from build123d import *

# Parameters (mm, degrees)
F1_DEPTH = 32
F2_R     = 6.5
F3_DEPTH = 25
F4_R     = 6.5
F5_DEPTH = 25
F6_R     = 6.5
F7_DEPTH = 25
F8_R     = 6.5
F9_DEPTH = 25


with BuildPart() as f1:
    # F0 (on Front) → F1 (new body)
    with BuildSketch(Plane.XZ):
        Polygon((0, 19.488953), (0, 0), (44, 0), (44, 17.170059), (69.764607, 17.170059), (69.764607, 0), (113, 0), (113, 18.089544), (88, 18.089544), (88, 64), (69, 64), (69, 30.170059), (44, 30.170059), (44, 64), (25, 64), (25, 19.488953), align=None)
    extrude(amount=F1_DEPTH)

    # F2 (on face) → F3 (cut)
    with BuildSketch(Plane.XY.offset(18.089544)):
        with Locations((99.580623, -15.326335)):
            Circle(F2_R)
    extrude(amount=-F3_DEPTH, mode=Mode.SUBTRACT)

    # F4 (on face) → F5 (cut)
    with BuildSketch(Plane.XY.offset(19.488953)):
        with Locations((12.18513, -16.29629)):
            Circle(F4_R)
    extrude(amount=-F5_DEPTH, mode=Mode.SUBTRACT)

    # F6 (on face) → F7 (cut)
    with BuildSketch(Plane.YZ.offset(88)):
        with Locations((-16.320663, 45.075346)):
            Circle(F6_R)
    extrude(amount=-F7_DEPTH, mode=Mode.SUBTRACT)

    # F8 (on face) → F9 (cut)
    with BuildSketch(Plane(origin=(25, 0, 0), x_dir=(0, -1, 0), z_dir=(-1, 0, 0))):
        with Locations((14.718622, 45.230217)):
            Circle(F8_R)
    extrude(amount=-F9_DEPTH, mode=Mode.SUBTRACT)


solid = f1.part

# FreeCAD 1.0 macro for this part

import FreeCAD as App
import Part
import Sketcher

V = App.Vector
Q = App.Units.Quantity


def add_polygon(sketch, points):
    """Adds a closed chain of lines whose ends are joined by coincident constraints."""
    first, n = sketch.GeometryCount, len(points)
    for a, b in zip(points, points[1:] + points[:1]):
        sketch.addGeometry(Part.LineSegment(App.Vector(*a, 0), App.Vector(*b, 0)), False)
    for i in range(n):
        sketch.addConstraint(Sketcher.Constraint("Coincident", first + i, 2, first + (i + 1) % n, 1))

doc = App.newDocument("Part")
params = doc.addObject("Spreadsheet::Sheet", "Params")
for row, (alias, value) in enumerate([
    ("sketch1_width", "44 mm"),
    ("sketch1_width2", "25 mm"),
    ("pad1_length", "32 mm"),
    ("sketch2_diameter", "13 mm"),
    ("pocket1_length", "25 mm"),
    ("sketch3_diameter", "13 mm"),
    ("pocket2_length", "25 mm"),
    ("sketch4_diameter", "13 mm"),
    ("pocket3_length", "25 mm"),
    ("sketch5_diameter", "13 mm"),
    ("pocket4_length", "25 mm"),
], start=1):
    params.set(f"A{row}", alias)
    params.set(f"B{row}", "=" + value)
    params.setAlias(f"B{row}", alias)

body = doc.addObject("PartDesign::Body", "Body")

# Sketch on XZ plane
sketch1 = body.newObject("Sketcher::SketchObject", "Sketch")
sketch1.AttachmentSupport = (doc.getObject("XZ_Plane"), [""])
sketch1.MapMode = "FlatFace"
add_polygon(sketch1, [(0, 19), (0, 0), (44, 0), (44, 17), (70, 17), (70, 0), (113, 0), (113, 18), (88, 18), (88, 64), (69, 64), (69, 30), (44, 30), (44, 64), (25, 64), (25, 19)])  # lines 0-15
sketch1.addConstraint(Sketcher.Constraint("Vertical", 0))
sketch1.addConstraint(Sketcher.Constraint("Horizontal", 1))
sketch1.addConstraint(Sketcher.Constraint("Vertical", 2))
sketch1.addConstraint(Sketcher.Constraint("Horizontal", 3))
sketch1.addConstraint(Sketcher.Constraint("Vertical", 4))
sketch1.addConstraint(Sketcher.Constraint("Horizontal", 5))
sketch1.addConstraint(Sketcher.Constraint("Vertical", 6))
sketch1.addConstraint(Sketcher.Constraint("Horizontal", 7))
sketch1.addConstraint(Sketcher.Constraint("Vertical", 8))
sketch1.addConstraint(Sketcher.Constraint("Horizontal", 9))
sketch1.addConstraint(Sketcher.Constraint("Vertical", 10))
sketch1.addConstraint(Sketcher.Constraint("Horizontal", 11))
sketch1.addConstraint(Sketcher.Constraint("Vertical", 12))
sketch1.addConstraint(Sketcher.Constraint("Horizontal", 13))
sketch1.addConstraint(Sketcher.Constraint("Vertical", 14))
sketch1.addConstraint(Sketcher.Constraint("Horizontal", 15))
sketch1.addConstraint(Sketcher.Constraint("Coincident", 0, 2, -1, 1))
sketch1.addConstraint(Sketcher.Constraint("PointOnObject", 4, 2, -1))
sketch1.addConstraint(Sketcher.Constraint("Horizontal", 9, 2, 12, 2))
sketch1.addConstraint(Sketcher.Constraint("Vertical", 2, 2, 11, 2))
sketch1.addConstraint(Sketcher.Constraint("Equal", 7, 11))
sketch1.addConstraint(Sketcher.Constraint("Equal", 9, 13))
sketch1.addConstraint(Sketcher.Constraint("Equal", 11, 15))
sketch1.addConstraint(Sketcher.Constraint("DistanceX", 1, 1, 1, 2, Q("44 mm")))
sketch1.addConstraint(Sketcher.Constraint("DistanceX", 7, 2, 7, 1, Q("25 mm")))
sketch1.addConstraint(Sketcher.Constraint("DistanceY", -1, 1, 8, 2, Q("64 mm")))
sketch1.addConstraint(Sketcher.Constraint("DistanceY", 3, 2, 10, 2, Q("13 mm")))
sketch1.addConstraint(Sketcher.Constraint("DistanceY", 2, 1, 2, 2, Q("17.170059 mm")))
sketch1.addConstraint(Sketcher.Constraint("DistanceX", 3, 1, 3, 2, Q("25.764607 mm")))
sketch1.addConstraint(Sketcher.Constraint("DistanceY", 0, 2, 0, 1, Q("19.488953 mm")))
sketch1.addConstraint(Sketcher.Constraint("DistanceY", 6, 1, 6, 2, Q("18.089544 mm")))
sketch1.setExpression("Constraints[39]", "Params.sketch1_width")
sketch1.setExpression("Constraints[40]", "Params.sketch1_width2")
pad1 = body.newObject("PartDesign::Pad", "Pad")
pad1.Profile = sketch1
pad1.setExpression("Length", "Params.pad1_length")

# Sketch on XY plane
sketch2 = body.newObject("Sketcher::SketchObject", "Sketch001")
sketch2.AttachmentSupport = (doc.getObject("XY_Plane"), [""])
sketch2.MapMode = "FlatFace"
sketch2.AttachmentOffset = App.Placement(V(0, 0, 18.089544), App.Rotation())
sketch2.addGeometry(Part.Circle(V(100, -15, 0), V(0, 0, 1), 6), False)
sketch2.addConstraint(Sketcher.Constraint("Diameter", 0, Q("13 mm")))
sketch2.addConstraint(Sketcher.Constraint("DistanceX", -1, 1, 0, 3, Q("99.580623 mm")))
sketch2.addConstraint(Sketcher.Constraint("DistanceY", 0, 3, -1, 1, Q("15.326335 mm")))
sketch2.setExpression("Constraints[0]", "Params.sketch2_diameter")
pocket1 = body.newObject("PartDesign::Pocket", "Pocket")
pocket1.Profile = sketch2
pocket1.setExpression("Length", "Params.pocket1_length")

# Sketch on XY plane
sketch3 = body.newObject("Sketcher::SketchObject", "Sketch002")
sketch3.AttachmentSupport = (doc.getObject("XY_Plane"), [""])
sketch3.MapMode = "FlatFace"
sketch3.AttachmentOffset = App.Placement(V(0, 0, 19.488953), App.Rotation())
sketch3.addGeometry(Part.Circle(V(12, -16, 0), V(0, 0, 1), 6), False)
sketch3.addConstraint(Sketcher.Constraint("Diameter", 0, Q("13 mm")))
sketch3.addConstraint(Sketcher.Constraint("DistanceX", -1, 1, 0, 3, Q("12.18513 mm")))
sketch3.addConstraint(Sketcher.Constraint("DistanceY", 0, 3, -1, 1, Q("16.29629 mm")))
sketch3.setExpression("Constraints[0]", "Params.sketch3_diameter")
pocket2 = body.newObject("PartDesign::Pocket", "Pocket001")
pocket2.Profile = sketch3
pocket2.setExpression("Length", "Params.pocket2_length")

# Sketch on YZ plane
sketch4 = body.newObject("Sketcher::SketchObject", "Sketch003")
sketch4.AttachmentSupport = (doc.getObject("YZ_Plane"), [""])
sketch4.MapMode = "FlatFace"
sketch4.AttachmentOffset = App.Placement(V(0, 0, 88), App.Rotation())
sketch4.addGeometry(Part.Circle(V(-16, 45, 0), V(0, 0, 1), 6), False)
sketch4.addConstraint(Sketcher.Constraint("Diameter", 0, Q("13 mm")))
sketch4.addConstraint(Sketcher.Constraint("DistanceX", 0, 3, -1, 1, Q("16.320663 mm")))
sketch4.addConstraint(Sketcher.Constraint("DistanceY", -1, 1, 0, 3, Q("45.075346 mm")))
sketch4.setExpression("Constraints[0]", "Params.sketch4_diameter")
pocket3 = body.newObject("PartDesign::Pocket", "Pocket002")
pocket3.Profile = sketch4
pocket3.setExpression("Length", "Params.pocket3_length")

# Sketch on YZ plane
sketch5 = body.newObject("Sketcher::SketchObject", "Sketch004")
sketch5.AttachmentSupport = (doc.getObject("YZ_Plane"), [""])
sketch5.MapMode = "FlatFace"
sketch5.AttachmentOffset = App.Placement(V(0, 0, 25), App.Rotation())
sketch5.addGeometry(Part.Circle(V(-15, 45, 0), V(0, 0, 1), 6), False)
sketch5.addConstraint(Sketcher.Constraint("Diameter", 0, Q("13 mm")))
sketch5.addConstraint(Sketcher.Constraint("DistanceX", 0, 3, -1, 1, Q("14.718622 mm")))
sketch5.addConstraint(Sketcher.Constraint("DistanceY", -1, 1, 0, 3, Q("45.230217 mm")))
sketch5.setExpression("Constraints[0]", "Params.sketch5_diameter")
pocket4 = body.newObject("PartDesign::Pocket", "Pocket003")
pocket4.Profile = sketch5
pocket4.setExpression("Length", "Params.pocket4_length")
pocket4.Reversed = True

doc.recompute()
